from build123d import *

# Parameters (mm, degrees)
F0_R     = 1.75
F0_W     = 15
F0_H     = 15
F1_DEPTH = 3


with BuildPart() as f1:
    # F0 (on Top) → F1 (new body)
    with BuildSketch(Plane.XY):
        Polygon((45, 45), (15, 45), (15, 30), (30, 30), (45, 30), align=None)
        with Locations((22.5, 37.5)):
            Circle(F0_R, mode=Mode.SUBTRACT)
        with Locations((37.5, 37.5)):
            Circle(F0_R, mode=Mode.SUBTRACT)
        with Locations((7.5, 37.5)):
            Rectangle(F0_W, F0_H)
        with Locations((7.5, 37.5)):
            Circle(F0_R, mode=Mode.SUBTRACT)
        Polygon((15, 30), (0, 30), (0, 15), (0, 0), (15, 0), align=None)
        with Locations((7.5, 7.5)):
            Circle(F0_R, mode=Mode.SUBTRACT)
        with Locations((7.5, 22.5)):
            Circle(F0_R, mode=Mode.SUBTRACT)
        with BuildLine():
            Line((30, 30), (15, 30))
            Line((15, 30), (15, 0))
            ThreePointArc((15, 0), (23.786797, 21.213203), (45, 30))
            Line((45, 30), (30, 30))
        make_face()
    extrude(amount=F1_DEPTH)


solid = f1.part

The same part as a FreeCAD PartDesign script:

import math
import FreeCAD as App
import Part
import Sketcher

V = App.Vector
Q = App.Units.Quantity

doc = App.newDocument("Part")
params = doc.addObject("Spreadsheet::Sheet", "Params")
for row, (alias, value) in enumerate([
    ("sketch1_radius", "30.000001 mm"),
    ("sketch1_diameter", "3.5 mm"),
    ("sketch1_width", "45 mm"),
    ("pad1_length", "3 mm"),
], start=1):
    params.set(f"A{row}", alias)
    params.set(f"B{row}", "=" + value)
    params.setAlias(f"B{row}", alias)

body = doc.addObject("PartDesign::Body", "Body")

# Sketch on XY plane
sketch1 = doc.addObject("Sketcher::SketchObject", "Sketch")
body.addObject(sketch1)
sketch1.AttachmentSupport = (doc.XY_Plane, [""])
sketch1.MapMode = "FlatFace"
sketch1.addGeometry([
    Part.LineSegment(V(45, 45, 0), V(0, 45, 0)),  # 0
    Part.LineSegment(V(0, 45, 0), V(0, 0, 0)),  # 1
    Part.LineSegment(V(0, 0, 0), V(15, 0, 0)),  # 2
    Part.ArcOfCircle(Part.Circle(V(45.000001, -0.000001, 0), V(0, 0, 1), 30.000001), math.radians(90.000003), math.radians(179.999997)),  # 3
    Part.LineSegment(V(45, 30, 0), V(45, 45, 0)),  # 4
    Part.Circle(V(7.5, 7.5, 0), V(0, 0, 1), 1.75),  # 5
    Part.Circle(V(7.5, 22.5, 0), V(0, 0, 1), 1.75),  # 6
    Part.Circle(V(7.5, 37.5, 0), V(0, 0, 1), 1.75),  # 7
    Part.Circle(V(22.5, 37.5, 0), V(0, 0, 1), 1.75),  # 8
    Part.Circle(V(37.5, 37.5, 0), V(0, 0, 1), 1.75),  # 9
], False)
sketch1.addConstraint([
    Sketcher.Constraint("Coincident", 0, 2, 1, 1),
    Sketcher.Constraint("Coincident", 1, 2, 2, 1),
    Sketcher.Constraint("Coincident", 2, 2, 3, 2),
    Sketcher.Constraint("Coincident", 3, 1, 4, 1),
    Sketcher.Constraint("Coincident", 4, 2, 0, 1),
    Sketcher.Constraint("Horizontal", 0),
    Sketcher.Constraint("Vertical", 1),
    Sketcher.Constraint("Horizontal", 2),
    Sketcher.Constraint("Vertical", 4),
    Sketcher.Constraint("Coincident", 1, 2, -1, 1),
    Sketcher.Constraint("Equal", 5, 6),
    Sketcher.Constraint("Equal", 6, 7),
    Sketcher.Constraint("Equal", 7, 8),
    Sketcher.Constraint("Equal", 8, 9),
    Sketcher.Constraint("PointOnObject", 3, 3, -1),
    Sketcher.Constraint("Horizontal", 7, 3, 8, 3),
    Sketcher.Constraint("Horizontal", 8, 3, 9, 3),
    Sketcher.Constraint("Vertical", 5, 3, 6, 3),
    Sketcher.Constraint("Vertical", 6, 3, 7, 3),
    Sketcher.Constraint("Equal", 0, 1),
    Sketcher.Constraint("Equal", 2, 4),
    Sketcher.Constraint("Radius", 3, Q("30.000001 mm")),
    Sketcher.Constraint("Diameter", 5, Q("3.5 mm")),
    Sketcher.Constraint("DistanceX", 0, 2, 0, 1, Q("45 mm")),
    Sketcher.Constraint("DistanceY", 5, 3, 6, 3, Q("15 mm")),
    Sketcher.Constraint("DistanceY", 6, 3, 7, 3, Q("15 mm")),
    Sketcher.Constraint("DistanceX", 7, 3, 8, 3, Q("15 mm")),
    Sketcher.Constraint("DistanceX", 8, 3, 9, 3, Q("15 mm")),
    Sketcher.Constraint("DistanceX", -1, 1, 5, 3, Q("7.5 mm")),
    Sketcher.Constraint("DistanceY", -1, 1, 5, 3, Q("7.5 mm")),
])
sketch1.setExpression("Constraints[21]", "Params.sketch1_radius")
sketch1.setExpression("Constraints[22]", "Params.sketch1_diameter")
sketch1.setExpression("Constraints[23]", "Params.sketch1_width")
pad1 = doc.addObject("PartDesign::Pad", "Pad")
body.addObject(pad1)
pad1.Profile = sketch1
pad1.setExpression("Length", "Params.pad1_length")

doc.recompute()
